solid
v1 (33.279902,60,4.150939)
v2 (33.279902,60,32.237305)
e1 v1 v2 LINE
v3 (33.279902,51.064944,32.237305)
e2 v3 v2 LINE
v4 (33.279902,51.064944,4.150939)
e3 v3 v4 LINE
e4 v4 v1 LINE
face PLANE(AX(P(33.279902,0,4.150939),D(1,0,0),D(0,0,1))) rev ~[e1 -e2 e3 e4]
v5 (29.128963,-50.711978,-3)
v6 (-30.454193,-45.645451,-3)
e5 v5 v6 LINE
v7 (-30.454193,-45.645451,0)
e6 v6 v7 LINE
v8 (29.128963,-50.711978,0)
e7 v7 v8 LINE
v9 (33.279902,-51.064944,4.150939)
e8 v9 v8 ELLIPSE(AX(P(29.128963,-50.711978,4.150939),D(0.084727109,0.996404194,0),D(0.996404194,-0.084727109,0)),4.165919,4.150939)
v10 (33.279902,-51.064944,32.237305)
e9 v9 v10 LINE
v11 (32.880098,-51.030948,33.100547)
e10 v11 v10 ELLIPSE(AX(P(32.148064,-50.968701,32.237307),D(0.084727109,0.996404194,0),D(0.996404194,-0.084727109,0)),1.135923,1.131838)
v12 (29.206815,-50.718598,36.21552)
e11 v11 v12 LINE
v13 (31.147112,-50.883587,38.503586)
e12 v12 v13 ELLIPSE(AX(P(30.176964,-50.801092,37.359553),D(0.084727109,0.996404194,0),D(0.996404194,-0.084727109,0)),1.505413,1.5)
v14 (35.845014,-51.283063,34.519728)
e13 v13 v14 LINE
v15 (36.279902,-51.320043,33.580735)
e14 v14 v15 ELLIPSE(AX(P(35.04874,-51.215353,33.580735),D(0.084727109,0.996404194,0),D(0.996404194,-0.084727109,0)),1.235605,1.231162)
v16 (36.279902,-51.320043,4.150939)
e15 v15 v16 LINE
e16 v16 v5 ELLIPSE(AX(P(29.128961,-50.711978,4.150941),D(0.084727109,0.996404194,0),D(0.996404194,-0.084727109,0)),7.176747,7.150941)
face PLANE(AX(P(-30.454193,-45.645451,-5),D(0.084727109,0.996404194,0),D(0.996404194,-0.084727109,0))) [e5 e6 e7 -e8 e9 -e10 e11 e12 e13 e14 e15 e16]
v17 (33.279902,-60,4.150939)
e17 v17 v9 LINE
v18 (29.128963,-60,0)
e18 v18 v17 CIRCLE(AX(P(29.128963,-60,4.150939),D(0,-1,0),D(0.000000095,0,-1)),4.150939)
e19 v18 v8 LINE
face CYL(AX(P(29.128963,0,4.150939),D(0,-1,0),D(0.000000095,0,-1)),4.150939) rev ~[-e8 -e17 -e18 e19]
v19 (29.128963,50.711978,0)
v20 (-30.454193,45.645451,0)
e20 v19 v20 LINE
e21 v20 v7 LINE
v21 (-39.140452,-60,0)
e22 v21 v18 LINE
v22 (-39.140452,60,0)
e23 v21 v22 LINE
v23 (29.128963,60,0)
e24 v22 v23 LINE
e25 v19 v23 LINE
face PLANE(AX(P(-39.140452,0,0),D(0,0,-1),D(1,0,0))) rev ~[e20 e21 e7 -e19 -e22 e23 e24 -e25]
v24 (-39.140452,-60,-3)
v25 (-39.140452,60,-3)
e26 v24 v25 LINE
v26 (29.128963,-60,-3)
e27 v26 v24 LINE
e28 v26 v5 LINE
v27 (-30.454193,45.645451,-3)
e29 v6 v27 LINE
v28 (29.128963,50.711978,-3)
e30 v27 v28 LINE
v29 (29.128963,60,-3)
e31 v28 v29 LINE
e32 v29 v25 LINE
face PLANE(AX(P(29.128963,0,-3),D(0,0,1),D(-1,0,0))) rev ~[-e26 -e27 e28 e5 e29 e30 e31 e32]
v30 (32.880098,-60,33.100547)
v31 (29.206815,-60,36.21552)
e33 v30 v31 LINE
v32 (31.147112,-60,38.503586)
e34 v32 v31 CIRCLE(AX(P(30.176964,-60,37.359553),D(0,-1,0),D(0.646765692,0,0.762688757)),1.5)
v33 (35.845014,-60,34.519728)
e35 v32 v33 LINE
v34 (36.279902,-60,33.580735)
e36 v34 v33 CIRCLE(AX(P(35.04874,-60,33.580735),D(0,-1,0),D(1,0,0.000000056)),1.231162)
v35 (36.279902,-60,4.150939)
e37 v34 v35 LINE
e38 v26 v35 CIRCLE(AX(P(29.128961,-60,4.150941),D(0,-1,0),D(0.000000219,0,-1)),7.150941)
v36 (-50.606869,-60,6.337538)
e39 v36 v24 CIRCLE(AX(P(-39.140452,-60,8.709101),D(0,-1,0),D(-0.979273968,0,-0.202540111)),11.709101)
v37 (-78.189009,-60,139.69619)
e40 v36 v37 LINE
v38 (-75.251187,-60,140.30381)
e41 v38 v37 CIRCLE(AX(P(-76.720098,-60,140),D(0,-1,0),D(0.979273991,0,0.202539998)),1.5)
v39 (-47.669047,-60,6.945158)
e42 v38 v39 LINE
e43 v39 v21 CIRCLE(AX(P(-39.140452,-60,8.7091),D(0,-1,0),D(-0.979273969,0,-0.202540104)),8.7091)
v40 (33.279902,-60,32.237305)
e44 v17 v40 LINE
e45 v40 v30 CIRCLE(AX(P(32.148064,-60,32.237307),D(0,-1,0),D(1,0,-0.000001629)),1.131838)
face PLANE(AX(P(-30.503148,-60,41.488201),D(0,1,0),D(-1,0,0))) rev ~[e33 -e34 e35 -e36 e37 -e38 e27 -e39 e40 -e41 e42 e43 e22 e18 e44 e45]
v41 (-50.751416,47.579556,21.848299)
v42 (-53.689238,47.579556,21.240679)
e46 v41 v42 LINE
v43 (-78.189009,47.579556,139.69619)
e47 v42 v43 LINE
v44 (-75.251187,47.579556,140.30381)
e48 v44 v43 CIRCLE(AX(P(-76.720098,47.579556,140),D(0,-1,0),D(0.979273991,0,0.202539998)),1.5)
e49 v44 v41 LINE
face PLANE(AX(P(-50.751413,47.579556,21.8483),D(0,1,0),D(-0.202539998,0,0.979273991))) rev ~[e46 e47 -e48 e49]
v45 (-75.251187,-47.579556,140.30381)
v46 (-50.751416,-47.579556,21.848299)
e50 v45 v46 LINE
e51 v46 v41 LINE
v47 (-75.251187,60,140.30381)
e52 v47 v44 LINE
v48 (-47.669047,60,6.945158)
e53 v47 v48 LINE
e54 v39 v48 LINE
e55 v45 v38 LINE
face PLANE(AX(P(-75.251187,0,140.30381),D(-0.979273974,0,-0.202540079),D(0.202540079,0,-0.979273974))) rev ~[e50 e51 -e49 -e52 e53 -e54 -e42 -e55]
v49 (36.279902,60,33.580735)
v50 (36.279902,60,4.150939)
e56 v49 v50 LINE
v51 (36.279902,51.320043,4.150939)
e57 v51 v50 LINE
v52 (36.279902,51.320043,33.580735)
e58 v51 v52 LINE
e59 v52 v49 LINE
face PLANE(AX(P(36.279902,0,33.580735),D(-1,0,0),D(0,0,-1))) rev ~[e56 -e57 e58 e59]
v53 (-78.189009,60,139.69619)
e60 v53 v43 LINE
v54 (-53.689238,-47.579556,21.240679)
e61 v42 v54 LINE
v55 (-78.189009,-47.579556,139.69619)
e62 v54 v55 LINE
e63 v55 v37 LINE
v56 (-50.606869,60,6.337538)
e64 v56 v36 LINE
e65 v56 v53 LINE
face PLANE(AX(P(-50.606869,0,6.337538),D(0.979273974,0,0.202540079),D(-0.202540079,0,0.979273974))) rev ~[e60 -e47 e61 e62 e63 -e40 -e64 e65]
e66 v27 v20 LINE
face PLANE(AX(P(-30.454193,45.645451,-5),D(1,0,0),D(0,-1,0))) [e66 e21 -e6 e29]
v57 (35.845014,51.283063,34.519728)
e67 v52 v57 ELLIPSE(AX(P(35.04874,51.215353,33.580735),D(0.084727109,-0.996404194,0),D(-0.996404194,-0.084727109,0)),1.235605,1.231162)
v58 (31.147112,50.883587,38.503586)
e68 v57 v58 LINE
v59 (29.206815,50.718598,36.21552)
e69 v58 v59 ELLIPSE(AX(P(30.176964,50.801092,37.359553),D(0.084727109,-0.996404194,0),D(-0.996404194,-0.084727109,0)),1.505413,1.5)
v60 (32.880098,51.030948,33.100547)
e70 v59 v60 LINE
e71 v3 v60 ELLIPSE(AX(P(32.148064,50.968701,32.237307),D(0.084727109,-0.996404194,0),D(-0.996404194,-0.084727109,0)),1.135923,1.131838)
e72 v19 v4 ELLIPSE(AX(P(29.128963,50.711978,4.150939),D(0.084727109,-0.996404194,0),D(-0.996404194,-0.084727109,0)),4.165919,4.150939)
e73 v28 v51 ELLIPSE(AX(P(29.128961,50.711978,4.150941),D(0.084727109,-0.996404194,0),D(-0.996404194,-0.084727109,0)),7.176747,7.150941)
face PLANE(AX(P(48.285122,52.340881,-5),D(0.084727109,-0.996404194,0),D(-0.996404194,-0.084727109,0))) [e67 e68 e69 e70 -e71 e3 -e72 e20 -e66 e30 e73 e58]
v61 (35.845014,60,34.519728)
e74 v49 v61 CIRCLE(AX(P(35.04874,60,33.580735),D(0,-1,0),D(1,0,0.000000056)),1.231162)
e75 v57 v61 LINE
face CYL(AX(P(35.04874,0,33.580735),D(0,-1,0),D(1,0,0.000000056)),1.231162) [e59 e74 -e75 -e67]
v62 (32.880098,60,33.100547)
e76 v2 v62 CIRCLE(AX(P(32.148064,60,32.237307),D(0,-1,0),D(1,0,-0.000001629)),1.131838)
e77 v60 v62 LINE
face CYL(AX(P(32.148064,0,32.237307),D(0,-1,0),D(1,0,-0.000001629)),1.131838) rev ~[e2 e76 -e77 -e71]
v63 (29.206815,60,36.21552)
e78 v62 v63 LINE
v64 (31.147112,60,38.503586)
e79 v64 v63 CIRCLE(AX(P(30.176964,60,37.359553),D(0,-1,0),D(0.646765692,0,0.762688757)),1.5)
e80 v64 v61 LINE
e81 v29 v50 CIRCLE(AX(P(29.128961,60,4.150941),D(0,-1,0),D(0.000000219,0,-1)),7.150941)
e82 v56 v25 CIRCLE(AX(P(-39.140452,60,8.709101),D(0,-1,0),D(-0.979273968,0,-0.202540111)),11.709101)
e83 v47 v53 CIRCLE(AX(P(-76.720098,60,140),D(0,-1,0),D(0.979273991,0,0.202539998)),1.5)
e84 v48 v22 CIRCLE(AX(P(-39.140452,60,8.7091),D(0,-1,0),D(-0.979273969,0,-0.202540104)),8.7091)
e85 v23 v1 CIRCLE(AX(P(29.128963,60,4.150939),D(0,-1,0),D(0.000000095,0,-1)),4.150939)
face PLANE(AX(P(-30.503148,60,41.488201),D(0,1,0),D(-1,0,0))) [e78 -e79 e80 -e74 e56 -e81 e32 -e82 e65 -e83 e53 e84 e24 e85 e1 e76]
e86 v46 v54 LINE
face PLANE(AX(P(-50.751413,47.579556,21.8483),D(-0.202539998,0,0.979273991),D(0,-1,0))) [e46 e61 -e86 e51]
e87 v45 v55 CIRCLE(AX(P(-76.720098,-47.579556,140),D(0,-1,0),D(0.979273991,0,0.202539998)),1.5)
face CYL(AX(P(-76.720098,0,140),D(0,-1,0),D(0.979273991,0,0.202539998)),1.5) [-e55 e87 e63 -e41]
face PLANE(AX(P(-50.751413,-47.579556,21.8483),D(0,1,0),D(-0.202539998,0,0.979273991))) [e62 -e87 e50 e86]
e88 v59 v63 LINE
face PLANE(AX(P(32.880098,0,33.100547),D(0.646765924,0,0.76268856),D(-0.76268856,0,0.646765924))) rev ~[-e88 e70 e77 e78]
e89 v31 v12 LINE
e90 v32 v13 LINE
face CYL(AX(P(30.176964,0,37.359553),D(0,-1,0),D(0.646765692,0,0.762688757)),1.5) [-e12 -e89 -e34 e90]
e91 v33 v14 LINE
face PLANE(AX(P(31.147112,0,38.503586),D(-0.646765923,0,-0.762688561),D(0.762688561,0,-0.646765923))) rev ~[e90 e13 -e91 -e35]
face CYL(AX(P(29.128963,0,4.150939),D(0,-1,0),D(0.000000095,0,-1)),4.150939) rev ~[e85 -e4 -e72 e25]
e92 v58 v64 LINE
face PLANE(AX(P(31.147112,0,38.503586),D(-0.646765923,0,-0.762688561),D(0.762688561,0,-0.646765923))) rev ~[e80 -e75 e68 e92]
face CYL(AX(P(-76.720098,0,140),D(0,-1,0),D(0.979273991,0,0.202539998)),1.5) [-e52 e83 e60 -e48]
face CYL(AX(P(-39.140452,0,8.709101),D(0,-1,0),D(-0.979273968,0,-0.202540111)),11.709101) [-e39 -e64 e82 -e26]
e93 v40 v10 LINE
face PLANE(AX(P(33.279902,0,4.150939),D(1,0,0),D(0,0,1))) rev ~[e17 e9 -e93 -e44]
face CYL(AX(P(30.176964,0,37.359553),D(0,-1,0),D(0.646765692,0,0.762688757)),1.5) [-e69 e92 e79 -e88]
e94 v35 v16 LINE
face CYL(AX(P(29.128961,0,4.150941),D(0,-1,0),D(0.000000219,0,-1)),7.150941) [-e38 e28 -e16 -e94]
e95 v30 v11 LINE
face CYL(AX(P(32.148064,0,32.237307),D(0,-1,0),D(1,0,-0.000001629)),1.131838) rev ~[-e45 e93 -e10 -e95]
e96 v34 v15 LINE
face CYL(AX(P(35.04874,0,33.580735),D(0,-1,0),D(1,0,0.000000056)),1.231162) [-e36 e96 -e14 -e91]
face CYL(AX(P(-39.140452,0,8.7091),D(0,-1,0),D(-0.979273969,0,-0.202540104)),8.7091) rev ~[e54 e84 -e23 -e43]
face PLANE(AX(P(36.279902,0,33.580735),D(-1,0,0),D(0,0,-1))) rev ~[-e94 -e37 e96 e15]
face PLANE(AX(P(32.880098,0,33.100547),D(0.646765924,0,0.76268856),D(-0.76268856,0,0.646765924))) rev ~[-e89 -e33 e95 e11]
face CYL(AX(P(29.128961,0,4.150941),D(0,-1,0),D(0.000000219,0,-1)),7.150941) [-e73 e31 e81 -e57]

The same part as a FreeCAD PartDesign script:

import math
import FreeCAD as App
import Part
import Sketcher
from FreeCAD import Vector

doc = App.newDocument("Part")
body = doc.addObject("PartDesign::Body", "Body")

sketch1 = body.newObject("Sketcher::SketchObject", "Sketch")
sketch1.AttachmentSupport = (doc.getObject("XZ_Plane"), [""])
sketch1.MapMode = "FlatFace"
sketch1.addGeometry([
    Part.LineSegment(Vector(-47.669047, 6.945158, 0), Vector(-75.251187, 140.30381, 0)),
    Part.ArcOfCircle(Part.Circle(Vector(-76.720098, 140, 0), Vector(0, 0, 1), 1.5), math.radians(11.685531), math.radians(191.685531)),
    Part.LineSegment(Vector(-78.189009, 139.69619, 0), Vector(-50.606869, 6.337538, 0)),
    Part.ArcOfCircle(Part.Circle(Vector(-39.140452, 8.709101, 0), Vector(0, 0, 1), 11.709101), math.radians(-168.314463), math.radians(-90.000002)),
    Part.LineSegment(Vector(-39.140452, -3, 0), Vector(29.128963, -3, 0)),
    Part.ArcOfCircle(Part.Circle(Vector(29.128961, 4.150941, 0), Vector(0, 0, 1), 7.150941), math.radians(-89.999987), math.radians(-0.000013)),
    Part.LineSegment(Vector(36.279902, 4.150939, 0), Vector(36.279902, 33.580735, 0)),
    Part.ArcOfCircle(Part.Circle(Vector(35.04874, 33.580735, 0), Vector(0, 0, 1), 1.231162), math.radians(0.000003), math.radians(49.70176)),
    Part.LineSegment(Vector(35.845014, 34.519728, 0), Vector(31.147112, 38.503586, 0)),
    Part.ArcOfCircle(Part.Circle(Vector(30.176964, 37.359553, 0), Vector(0, 0, 1), 1.5), math.radians(49.70181), math.radians(229.701805)),
    Part.LineSegment(Vector(29.206815, 36.21552, 0), Vector(32.880098, 33.100547, 0)),
    Part.ArcOfCircle(Part.Circle(Vector(32.148064, 32.237307, 0), Vector(0, 0, 1), 1.131838), math.radians(-0.000093), math.radians(49.701806)),
    Part.LineSegment(Vector(33.279902, 32.237305, 0), Vector(33.279902, 4.150939, 0)),
    Part.ArcOfCircle(Part.Circle(Vector(29.128963, 4.150939, 0), Vector(0, 0, 1), 4.150939), math.radians(-89.999995), math.radians(-0.000005)),
    Part.LineSegment(Vector(29.128963, 0, 0), Vector(-39.140452, 0, 0)),
    Part.ArcOfCircle(Part.Circle(Vector(-39.140452, 8.7091, 0), Vector(0, 0, 1), 8.7091), math.radians(-168.314463), math.radians(-90)),
], False)
sketch1.addConstraint([
    Sketcher.Constraint("Tangent", 0, 2, 1, 1),
    Sketcher.Constraint("Tangent", 1, 2, 2, 1),
    Sketcher.Constraint("Tangent", 2, 2, 3, 1),
    Sketcher.Constraint("Tangent", 3, 2, 4, 1),
    Sketcher.Constraint("Tangent", 4, 2, 5, 1),
    Sketcher.Constraint("Tangent", 5, 2, 6, 1),
    Sketcher.Constraint("Tangent", 6, 2, 7, 1),
    Sketcher.Constraint("Tangent", 7, 2, 8, 1),
    Sketcher.Constraint("Tangent", 8, 2, 9, 1),
    Sketcher.Constraint("Tangent", 9, 2, 10, 1),
    Sketcher.Constraint("Tangent", 10, 2, 11, 2),
    Sketcher.Constraint("Tangent", 11, 1, 12, 1),
    Sketcher.Constraint("Tangent", 12, 2, 13, 2),
    Sketcher.Constraint("Tangent", 13, 1, 14, 1),
    Sketcher.Constraint("Tangent", 14, 2, 15, 2),
    Sketcher.Constraint("Tangent", 15, 1, 0, 1),
    Sketcher.Constraint("Horizontal", 4),
    Sketcher.Constraint("Vertical", 6),
    Sketcher.Constraint("Vertical", 12),
    Sketcher.Constraint("Horizontal", 14),
    Sketcher.Constraint("Coincident", 13, 3, 5, 3),
    Sketcher.Constraint("Coincident", 15, 3, 3, 3),
    Sketcher.Constraint("Equal", 1, 9),
    Sketcher.Constraint("PointOnObject", 13, 1, -1),
    Sketcher.Constraint("Parallel", 0, 2),
    Sketcher.Constraint("Parallel", 8, 10),
    Sketcher.Constraint("Radius", 1, 1.5),
    Sketcher.Constraint("DistanceY", -1, 1, 1, 3, 140.0),
    Sketcher.Constraint("Radius", 3, 11.709101),
    Sketcher.Constraint("Radius", 5, 7.150941),
    Sketcher.Constraint("Radius", 11, 1.131838),
    Sketcher.Constraint("Radius", 7, 1.231162),
    Sketcher.Constraint("DistanceX", 13, 3, 9, 3, 1.048001),
    Sketcher.Constraint("DistanceX", -1, 1, 5, 2, 36.279902),
    Sketcher.Constraint("DistanceY", 13, 3, 2, 2, 2.186599),
    Sketcher.Constraint("DistanceX", 9, 2, 7, 2, 6.638199),
    Sketcher.Constraint("DistanceX", 4, 1, 4, 2, 68.269415),
    Sketcher.Constraint("DistanceY", 6, 1, 6, 2, 29.429796),
])
pad1 = body.newObject("PartDesign::Pad", "Pad")
pad1.Profile = sketch1
pad1.Length = 120
pad1.Midplane = True

sketch2 = body.newObject("Sketcher::SketchObject", "Sketch001")
sketch2.AttachmentSupport = (doc.getObject("XY_Plane"), [""])
sketch2.MapMode = "FlatFace"
sketch2.AttachmentOffset = App.Placement(Vector(0, 0, -5), App.Rotation())
sketch2.addGeometry([
    Part.LineSegment(Vector(-30.454193, 45.645451, 0), Vector(-30.454193, -45.645451, 0)),
    Part.LineSegment(Vector(-30.454193, -45.645451, 0), Vector(48.285122, -52.340881, 0)),
    Part.LineSegment(Vector(48.285122, -52.340881, 0), Vector(48.285122, 52.340881, 0)),
    Part.LineSegment(Vector(48.285122, 52.340881, 0), Vector(-30.454193, 45.645451, 0)),
], False)
sketch2.addConstraint([
    Sketcher.Constraint("Coincident", 0, 2, 1, 1),
    Sketcher.Constraint("Coincident", 1, 2, 2, 1),
    Sketcher.Constraint("Coincident", 2, 2, 3, 1),
    Sketcher.Constraint("Coincident", 3, 2, 0, 1),
    Sketcher.Constraint("Vertical", 0),
    Sketcher.Constraint("Vertical", 2),
    Sketcher.Constraint("Equal", 1, 3),
    Sketcher.Constraint("Distance", 1, 79.023468),
    Sketcher.Constraint("DistanceY", 0, 2, 0, 1, 91.290902),
    Sketcher.Constraint("DistanceY", 2, 1, 2, 2, 104.681762),
    Sketcher.Constraint("DistanceY", 0, 2, -1, 1, 45.645451),
    Sketcher.Constraint("DistanceX", 0, 2, -1, 1, 30.454193),
])
pocket1 = body.newObject("PartDesign::Pocket", "Pocket")
pocket1.Profile = sketch2
pocket1.Type = "ThroughAll"
pocket1.Reversed = True

sketch3 = body.newObject("Sketcher::SketchObject", "Sketch002")
sketch3.Placement = App.Placement(Vector(-44.336026, 0, -9.169877), App.Rotation(Vector(-0.202539998, 0, 0.979273991), Vector(0, -1, 0), Vector(0.979273991, 0, 0.202539998), "ZXY"))
sketch3.addGeometry([
    Part.LineSegment(Vector(31.674667, 47.579556, 0), Vector(31.674667, -47.579556, 0)),
    Part.LineSegment(Vector(31.674667, -47.579556, 0), Vector(163.965926, -47.579556, 0)),
    Part.LineSegment(Vector(163.965926, -47.579556, 0), Vector(163.965926, 47.579556, 0)),
    Part.LineSegment(Vector(163.965926, 47.579556, 0), Vector(31.674667, 47.579556, 0)),
], False)
sketch3.addConstraint([
    Sketcher.Constraint("Coincident", 0, 2, 1, 1),
    Sketcher.Constraint("Coincident", 1, 2, 2, 1),
    Sketcher.Constraint("Coincident", 2, 2, 3, 1),
    Sketcher.Constraint("Coincident", 3, 2, 0, 1),
    Sketcher.Constraint("Vertical", 0),
    Sketcher.Constraint("Horizontal", 1),
    Sketcher.Constraint("Vertical", 2),
    Sketcher.Constraint("Horizontal", 3),
    Sketcher.Constraint("DistanceX", 1, 1, 1, 2, 132.291259),
    Sketcher.Constraint("DistanceY", 0, 2, 0, 1, 95.159112),
    Sketcher.Constraint("DistanceX", -1, 1, 0, 2, 31.674667),
    Sketcher.Constraint("DistanceY", 0, 2, -1, 1, 47.579556),
])
pocket2 = body.newObject("PartDesign::Pocket", "Pocket001")
pocket2.Profile = sketch3
pocket2.Length = 5

doc.recompute()
